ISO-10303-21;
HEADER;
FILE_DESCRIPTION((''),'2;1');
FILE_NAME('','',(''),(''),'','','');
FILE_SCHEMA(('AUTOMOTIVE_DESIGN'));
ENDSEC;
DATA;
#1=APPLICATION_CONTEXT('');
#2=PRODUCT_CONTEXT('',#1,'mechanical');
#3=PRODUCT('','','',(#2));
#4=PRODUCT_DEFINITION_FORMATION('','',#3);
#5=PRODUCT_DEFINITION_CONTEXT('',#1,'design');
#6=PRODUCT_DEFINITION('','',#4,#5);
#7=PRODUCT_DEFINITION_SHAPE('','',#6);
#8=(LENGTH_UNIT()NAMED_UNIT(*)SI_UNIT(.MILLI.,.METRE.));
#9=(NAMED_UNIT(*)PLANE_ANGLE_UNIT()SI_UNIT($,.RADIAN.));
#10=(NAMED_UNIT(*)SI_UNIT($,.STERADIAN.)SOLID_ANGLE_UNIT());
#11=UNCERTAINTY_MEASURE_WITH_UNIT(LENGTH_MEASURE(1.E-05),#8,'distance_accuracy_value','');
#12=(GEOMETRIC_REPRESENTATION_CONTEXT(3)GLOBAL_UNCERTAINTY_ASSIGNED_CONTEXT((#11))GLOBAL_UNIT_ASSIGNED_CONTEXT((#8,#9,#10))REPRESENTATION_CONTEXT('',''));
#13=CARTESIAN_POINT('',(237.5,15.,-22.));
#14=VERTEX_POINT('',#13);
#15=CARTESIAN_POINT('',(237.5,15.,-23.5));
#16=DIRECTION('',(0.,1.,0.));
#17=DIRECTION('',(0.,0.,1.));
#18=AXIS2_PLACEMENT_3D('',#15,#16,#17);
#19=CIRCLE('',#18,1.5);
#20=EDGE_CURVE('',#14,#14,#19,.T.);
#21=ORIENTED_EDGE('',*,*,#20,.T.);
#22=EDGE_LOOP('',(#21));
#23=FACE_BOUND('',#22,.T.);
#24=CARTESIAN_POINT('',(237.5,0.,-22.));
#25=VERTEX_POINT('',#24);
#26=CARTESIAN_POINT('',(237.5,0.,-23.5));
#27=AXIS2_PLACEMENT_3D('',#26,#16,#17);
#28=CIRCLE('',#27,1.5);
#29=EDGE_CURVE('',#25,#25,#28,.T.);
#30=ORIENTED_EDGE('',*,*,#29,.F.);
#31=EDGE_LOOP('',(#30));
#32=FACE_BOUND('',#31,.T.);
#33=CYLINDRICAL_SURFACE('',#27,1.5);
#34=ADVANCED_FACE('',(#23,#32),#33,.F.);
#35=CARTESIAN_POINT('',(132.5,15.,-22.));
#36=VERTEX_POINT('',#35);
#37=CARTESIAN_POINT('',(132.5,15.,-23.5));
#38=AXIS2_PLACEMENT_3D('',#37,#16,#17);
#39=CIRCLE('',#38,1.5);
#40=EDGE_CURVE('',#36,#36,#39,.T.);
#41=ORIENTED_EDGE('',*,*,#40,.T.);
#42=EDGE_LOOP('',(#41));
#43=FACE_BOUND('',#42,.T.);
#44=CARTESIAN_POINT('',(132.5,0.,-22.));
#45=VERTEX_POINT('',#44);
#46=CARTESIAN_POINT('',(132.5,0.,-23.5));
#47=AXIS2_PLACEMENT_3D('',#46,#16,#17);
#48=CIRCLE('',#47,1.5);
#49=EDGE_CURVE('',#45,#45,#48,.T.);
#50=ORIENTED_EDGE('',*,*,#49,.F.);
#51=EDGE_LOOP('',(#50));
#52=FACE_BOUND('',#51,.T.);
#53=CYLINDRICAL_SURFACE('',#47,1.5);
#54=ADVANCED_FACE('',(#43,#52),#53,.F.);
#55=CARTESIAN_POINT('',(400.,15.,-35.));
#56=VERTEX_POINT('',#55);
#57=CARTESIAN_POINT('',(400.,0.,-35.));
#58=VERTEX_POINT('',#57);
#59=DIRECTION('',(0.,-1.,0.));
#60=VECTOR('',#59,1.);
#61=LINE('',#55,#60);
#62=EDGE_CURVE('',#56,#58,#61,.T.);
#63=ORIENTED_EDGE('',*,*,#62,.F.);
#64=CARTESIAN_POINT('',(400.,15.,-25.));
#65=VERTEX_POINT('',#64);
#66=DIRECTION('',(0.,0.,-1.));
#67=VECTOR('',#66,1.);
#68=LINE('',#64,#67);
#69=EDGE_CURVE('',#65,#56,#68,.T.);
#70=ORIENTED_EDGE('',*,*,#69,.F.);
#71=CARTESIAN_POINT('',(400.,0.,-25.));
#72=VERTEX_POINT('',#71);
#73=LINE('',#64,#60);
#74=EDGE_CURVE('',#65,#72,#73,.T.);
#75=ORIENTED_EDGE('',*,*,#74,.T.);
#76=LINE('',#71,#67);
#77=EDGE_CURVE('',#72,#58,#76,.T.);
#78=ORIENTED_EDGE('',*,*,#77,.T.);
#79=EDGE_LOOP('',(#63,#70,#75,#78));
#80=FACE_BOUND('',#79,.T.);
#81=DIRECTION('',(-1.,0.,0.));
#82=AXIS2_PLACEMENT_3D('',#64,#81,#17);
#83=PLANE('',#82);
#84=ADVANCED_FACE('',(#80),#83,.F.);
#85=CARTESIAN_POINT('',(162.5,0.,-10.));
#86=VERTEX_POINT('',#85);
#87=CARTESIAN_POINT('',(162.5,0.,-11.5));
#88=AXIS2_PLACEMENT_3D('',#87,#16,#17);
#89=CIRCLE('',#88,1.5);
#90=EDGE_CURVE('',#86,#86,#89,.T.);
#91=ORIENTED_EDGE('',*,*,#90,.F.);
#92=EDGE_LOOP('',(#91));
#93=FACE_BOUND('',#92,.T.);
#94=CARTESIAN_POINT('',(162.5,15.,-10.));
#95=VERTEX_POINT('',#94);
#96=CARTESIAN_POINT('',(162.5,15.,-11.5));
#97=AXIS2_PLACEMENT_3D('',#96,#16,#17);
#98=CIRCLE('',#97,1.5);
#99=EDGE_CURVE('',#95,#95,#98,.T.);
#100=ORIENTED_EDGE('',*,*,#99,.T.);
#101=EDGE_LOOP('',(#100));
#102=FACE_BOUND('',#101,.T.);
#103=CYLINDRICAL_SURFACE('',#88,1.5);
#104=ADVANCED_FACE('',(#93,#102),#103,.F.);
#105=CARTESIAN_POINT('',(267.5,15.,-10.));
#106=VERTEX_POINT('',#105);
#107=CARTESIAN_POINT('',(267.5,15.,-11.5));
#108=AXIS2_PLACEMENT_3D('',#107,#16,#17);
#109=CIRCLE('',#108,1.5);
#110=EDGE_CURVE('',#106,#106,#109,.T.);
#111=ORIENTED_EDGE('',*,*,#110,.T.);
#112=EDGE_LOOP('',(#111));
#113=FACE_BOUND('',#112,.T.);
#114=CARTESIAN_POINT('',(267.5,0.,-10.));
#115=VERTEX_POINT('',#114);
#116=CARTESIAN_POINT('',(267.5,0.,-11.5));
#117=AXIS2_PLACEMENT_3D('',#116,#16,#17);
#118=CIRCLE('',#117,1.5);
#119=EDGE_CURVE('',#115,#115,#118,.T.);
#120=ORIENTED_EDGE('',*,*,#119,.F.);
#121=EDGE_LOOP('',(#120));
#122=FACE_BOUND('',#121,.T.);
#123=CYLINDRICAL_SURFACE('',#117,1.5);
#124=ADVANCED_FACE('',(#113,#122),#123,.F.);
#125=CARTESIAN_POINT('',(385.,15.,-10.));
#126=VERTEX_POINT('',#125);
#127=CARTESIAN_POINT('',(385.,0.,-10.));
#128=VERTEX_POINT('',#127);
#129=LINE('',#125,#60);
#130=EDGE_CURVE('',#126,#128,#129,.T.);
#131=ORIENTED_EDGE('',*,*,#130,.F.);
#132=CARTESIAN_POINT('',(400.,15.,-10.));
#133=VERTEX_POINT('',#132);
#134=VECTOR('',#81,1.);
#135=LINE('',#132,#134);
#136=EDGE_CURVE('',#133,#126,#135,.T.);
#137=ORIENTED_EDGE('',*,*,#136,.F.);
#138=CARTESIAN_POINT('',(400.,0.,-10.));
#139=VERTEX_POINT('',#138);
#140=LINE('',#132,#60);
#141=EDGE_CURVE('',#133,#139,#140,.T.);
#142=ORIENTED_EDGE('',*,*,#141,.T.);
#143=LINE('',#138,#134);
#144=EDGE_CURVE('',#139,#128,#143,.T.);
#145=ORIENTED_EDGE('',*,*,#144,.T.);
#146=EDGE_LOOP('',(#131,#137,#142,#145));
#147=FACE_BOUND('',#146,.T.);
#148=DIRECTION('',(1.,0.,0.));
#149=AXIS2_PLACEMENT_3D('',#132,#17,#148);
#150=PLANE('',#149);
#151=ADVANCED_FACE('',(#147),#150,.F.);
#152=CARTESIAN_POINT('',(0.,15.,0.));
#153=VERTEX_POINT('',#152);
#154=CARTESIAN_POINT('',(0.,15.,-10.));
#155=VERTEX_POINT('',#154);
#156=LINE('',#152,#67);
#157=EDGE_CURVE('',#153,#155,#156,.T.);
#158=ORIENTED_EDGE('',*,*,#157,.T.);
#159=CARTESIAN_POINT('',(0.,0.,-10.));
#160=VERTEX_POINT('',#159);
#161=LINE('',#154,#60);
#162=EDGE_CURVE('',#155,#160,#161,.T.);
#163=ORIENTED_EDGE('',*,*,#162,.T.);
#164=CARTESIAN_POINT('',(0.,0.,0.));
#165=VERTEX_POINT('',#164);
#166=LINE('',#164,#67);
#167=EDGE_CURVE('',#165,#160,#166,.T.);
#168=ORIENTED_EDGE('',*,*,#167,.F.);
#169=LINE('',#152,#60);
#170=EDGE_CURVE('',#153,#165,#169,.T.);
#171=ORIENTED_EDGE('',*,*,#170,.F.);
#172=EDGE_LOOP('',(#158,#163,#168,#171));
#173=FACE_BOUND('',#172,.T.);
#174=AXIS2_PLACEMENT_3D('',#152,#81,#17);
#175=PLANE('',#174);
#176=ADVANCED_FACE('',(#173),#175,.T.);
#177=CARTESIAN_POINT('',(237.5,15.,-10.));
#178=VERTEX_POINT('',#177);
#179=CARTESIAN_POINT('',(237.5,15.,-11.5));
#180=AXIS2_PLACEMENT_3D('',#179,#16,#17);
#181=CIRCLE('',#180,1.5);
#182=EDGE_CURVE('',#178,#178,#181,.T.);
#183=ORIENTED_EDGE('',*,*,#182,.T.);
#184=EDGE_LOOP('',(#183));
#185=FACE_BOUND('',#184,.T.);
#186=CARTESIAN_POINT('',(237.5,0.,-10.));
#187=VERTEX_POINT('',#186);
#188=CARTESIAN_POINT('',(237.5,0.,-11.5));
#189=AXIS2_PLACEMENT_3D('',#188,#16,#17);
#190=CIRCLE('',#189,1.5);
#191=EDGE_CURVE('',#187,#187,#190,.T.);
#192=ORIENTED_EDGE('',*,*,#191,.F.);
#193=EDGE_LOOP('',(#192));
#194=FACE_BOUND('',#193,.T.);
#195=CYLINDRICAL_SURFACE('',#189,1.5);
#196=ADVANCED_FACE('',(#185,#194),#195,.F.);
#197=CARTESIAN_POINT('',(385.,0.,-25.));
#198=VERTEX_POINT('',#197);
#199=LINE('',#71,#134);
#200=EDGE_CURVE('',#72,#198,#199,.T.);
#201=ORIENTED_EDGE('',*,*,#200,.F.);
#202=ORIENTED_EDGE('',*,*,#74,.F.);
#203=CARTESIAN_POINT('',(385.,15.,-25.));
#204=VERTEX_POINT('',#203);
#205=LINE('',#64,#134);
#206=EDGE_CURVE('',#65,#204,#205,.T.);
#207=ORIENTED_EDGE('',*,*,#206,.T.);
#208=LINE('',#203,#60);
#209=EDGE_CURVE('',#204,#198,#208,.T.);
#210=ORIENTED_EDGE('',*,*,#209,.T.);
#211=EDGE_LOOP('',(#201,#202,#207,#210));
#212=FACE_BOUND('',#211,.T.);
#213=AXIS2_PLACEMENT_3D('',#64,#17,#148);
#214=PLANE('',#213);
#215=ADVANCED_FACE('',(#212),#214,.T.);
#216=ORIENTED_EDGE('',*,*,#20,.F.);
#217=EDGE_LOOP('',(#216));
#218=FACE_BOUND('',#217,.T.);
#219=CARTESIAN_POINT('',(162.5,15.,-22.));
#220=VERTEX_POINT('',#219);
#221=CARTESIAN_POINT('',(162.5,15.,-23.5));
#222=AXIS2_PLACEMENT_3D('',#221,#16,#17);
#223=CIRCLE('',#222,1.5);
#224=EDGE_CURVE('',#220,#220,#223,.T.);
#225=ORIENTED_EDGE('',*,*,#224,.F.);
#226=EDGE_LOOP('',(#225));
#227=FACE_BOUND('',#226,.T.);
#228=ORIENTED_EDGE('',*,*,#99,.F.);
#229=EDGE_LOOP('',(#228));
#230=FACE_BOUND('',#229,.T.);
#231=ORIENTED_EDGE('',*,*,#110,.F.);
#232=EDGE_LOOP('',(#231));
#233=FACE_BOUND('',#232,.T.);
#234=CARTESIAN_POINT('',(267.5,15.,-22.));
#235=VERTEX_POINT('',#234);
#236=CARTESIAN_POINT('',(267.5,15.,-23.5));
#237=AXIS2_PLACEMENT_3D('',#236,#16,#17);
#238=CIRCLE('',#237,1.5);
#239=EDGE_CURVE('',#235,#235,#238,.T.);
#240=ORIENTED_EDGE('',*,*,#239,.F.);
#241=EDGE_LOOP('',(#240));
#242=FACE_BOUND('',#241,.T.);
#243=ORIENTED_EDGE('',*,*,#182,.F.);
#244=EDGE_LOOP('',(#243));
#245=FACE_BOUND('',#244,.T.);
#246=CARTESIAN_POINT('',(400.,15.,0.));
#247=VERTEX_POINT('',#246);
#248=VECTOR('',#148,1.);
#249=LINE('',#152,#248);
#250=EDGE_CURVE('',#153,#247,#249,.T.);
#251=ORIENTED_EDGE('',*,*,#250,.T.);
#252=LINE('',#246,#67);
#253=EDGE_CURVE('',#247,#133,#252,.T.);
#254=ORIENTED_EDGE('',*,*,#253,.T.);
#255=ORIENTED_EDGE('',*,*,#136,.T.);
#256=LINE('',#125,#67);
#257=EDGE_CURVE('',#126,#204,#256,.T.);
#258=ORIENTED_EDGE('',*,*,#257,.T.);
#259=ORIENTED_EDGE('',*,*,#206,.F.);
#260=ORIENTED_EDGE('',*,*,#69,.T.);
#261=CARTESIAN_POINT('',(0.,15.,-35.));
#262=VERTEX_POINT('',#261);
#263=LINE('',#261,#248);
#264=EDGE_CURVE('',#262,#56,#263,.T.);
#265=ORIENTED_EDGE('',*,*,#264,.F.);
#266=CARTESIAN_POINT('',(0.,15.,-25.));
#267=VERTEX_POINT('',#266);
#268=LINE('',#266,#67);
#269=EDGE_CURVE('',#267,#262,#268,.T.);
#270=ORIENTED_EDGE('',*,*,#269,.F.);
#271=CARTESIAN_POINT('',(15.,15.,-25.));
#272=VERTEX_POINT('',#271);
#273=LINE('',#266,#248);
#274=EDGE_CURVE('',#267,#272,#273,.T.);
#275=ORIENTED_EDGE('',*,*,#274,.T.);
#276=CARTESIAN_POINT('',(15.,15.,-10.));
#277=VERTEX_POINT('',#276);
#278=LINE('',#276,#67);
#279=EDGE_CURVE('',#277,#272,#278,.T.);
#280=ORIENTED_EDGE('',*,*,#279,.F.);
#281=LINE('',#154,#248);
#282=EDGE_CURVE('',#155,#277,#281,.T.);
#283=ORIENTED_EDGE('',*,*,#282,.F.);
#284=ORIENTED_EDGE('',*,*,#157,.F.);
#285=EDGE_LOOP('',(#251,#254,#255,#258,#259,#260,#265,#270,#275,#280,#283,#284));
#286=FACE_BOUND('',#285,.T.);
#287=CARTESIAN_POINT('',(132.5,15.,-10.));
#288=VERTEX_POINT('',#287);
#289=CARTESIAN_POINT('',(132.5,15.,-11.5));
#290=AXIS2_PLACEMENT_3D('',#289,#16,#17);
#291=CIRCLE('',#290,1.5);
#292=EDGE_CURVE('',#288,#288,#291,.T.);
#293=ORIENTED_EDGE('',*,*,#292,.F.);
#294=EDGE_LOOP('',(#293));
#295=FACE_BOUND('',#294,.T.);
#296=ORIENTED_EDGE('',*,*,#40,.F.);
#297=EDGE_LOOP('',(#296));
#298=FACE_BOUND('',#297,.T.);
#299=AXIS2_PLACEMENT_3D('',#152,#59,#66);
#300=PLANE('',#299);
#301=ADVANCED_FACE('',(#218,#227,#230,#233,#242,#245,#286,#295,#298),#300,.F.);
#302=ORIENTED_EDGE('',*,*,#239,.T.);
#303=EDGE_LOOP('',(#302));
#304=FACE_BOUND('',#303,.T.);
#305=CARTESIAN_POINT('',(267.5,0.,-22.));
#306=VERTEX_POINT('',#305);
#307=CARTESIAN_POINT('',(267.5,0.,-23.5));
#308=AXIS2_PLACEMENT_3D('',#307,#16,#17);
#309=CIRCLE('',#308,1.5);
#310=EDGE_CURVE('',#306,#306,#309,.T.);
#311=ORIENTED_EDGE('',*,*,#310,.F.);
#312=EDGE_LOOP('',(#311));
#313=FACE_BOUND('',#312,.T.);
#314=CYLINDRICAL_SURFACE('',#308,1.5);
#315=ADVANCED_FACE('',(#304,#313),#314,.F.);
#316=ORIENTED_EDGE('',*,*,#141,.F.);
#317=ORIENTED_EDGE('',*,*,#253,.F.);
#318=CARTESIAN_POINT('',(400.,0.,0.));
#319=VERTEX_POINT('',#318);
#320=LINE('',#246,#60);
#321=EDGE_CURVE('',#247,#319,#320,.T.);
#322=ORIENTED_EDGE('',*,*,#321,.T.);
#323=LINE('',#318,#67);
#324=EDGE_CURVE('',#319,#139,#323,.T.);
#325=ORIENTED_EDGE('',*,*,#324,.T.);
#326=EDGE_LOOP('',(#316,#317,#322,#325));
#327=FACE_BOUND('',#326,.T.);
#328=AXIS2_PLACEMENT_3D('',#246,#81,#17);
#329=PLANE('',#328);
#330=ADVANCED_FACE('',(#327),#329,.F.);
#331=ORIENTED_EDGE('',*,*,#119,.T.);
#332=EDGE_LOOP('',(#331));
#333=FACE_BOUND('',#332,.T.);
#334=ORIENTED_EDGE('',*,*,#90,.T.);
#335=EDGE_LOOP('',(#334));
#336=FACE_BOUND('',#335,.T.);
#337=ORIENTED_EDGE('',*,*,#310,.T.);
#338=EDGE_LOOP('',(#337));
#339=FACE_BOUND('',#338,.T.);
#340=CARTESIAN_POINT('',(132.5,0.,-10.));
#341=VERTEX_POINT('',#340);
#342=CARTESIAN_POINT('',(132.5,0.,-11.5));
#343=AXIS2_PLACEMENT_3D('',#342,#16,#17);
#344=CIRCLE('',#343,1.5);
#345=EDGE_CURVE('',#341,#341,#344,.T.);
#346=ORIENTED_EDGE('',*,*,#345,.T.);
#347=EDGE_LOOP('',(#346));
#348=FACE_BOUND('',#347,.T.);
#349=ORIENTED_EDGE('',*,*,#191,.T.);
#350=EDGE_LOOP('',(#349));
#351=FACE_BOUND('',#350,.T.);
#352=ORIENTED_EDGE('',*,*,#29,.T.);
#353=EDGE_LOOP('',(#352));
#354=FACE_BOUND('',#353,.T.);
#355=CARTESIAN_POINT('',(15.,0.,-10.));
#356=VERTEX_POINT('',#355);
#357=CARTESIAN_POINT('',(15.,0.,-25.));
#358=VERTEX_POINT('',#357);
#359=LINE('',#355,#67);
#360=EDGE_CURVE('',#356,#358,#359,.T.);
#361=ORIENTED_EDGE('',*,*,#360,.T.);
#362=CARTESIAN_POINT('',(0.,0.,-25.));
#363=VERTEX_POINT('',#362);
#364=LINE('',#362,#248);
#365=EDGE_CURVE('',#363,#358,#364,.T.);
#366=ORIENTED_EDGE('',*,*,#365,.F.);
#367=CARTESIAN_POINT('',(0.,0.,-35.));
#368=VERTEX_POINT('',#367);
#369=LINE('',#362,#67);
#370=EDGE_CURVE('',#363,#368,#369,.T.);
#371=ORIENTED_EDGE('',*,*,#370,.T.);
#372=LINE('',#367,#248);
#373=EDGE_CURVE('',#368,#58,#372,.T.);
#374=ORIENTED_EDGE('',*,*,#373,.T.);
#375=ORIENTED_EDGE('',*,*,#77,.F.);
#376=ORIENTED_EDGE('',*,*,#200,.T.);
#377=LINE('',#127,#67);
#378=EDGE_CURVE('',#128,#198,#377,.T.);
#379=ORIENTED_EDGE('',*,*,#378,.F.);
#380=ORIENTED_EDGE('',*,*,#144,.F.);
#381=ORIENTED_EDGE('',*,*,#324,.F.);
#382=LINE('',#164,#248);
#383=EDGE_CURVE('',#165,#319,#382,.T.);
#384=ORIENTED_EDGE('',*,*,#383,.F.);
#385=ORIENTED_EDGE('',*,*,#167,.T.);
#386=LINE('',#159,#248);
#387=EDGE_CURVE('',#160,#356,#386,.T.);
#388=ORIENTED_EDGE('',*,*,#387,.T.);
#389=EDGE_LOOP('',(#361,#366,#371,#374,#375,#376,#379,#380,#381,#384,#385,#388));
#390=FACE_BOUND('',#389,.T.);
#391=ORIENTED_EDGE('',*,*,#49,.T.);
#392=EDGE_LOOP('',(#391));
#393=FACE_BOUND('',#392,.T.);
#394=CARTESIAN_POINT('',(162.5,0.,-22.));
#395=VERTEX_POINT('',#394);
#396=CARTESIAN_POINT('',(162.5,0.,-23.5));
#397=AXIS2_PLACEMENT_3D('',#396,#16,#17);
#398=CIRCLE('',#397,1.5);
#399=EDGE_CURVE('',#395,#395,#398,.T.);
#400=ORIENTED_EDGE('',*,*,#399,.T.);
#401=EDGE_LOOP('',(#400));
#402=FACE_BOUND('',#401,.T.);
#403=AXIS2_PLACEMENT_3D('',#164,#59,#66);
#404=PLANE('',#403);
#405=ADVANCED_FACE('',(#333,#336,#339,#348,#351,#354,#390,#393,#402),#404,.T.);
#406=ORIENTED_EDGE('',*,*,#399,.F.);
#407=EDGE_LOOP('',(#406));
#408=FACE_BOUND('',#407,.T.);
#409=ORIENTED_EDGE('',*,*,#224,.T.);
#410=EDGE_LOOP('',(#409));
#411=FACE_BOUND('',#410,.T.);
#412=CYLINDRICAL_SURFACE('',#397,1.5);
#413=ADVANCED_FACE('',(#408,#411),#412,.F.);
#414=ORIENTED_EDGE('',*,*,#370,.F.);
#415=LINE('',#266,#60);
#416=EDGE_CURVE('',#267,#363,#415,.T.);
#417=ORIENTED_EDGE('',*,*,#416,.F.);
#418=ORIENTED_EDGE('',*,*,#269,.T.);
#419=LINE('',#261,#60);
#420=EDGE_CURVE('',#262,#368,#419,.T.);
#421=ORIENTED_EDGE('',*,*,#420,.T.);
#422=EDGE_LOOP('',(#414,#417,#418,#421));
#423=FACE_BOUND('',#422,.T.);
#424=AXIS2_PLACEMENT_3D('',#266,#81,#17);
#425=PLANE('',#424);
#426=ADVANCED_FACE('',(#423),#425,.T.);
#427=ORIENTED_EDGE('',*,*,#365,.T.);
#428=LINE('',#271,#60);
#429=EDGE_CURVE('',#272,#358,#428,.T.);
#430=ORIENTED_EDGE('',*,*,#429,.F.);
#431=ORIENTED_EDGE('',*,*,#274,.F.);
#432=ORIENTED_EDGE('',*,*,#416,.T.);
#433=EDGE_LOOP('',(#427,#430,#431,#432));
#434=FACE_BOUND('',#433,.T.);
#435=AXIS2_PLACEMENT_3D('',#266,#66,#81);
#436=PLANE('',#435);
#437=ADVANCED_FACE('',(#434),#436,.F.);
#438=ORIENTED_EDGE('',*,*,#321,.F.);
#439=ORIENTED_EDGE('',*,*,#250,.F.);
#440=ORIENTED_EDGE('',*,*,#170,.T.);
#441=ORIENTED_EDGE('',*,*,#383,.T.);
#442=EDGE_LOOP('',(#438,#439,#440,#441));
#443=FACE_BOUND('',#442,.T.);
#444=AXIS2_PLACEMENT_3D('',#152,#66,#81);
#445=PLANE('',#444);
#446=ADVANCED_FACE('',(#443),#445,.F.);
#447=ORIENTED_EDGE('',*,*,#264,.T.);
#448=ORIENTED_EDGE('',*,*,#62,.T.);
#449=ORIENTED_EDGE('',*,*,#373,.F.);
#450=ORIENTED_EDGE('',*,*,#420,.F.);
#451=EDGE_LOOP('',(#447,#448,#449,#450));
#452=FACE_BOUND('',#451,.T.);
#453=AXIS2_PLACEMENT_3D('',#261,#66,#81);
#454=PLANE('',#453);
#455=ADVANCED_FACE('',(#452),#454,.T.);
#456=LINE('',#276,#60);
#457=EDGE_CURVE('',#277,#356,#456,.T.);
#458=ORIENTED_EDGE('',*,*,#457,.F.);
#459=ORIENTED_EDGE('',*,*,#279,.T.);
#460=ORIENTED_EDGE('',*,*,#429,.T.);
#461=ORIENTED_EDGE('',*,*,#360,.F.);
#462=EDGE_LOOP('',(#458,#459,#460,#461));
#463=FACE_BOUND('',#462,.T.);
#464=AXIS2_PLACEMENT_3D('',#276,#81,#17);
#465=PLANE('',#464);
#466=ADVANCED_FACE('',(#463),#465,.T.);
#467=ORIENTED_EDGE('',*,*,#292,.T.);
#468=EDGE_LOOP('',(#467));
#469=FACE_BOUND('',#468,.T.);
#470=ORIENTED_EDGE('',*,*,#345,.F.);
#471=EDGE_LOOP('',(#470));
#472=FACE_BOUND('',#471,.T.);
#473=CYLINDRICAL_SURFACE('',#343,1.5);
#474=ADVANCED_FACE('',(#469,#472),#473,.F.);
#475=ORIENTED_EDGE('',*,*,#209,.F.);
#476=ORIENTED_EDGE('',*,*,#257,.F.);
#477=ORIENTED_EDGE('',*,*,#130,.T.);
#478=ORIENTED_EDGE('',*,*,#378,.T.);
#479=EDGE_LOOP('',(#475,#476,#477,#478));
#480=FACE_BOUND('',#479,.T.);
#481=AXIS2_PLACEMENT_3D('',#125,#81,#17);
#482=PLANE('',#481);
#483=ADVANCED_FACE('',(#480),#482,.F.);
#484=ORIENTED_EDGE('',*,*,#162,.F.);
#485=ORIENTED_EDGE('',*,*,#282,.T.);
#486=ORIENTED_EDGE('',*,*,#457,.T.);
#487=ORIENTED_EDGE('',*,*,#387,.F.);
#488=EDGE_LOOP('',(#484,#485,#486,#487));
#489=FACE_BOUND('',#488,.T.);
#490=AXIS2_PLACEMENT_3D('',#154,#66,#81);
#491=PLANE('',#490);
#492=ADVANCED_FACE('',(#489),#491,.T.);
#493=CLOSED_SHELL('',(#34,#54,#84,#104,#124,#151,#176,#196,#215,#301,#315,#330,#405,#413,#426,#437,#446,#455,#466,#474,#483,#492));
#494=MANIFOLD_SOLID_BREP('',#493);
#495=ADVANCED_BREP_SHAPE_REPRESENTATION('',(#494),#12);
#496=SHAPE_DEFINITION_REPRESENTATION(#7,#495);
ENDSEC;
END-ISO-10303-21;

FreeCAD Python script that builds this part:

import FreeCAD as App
import Part
import Sketcher

V = App.Vector


def add_polygon(sketch, points):
    """Adds a closed chain of lines whose ends are joined by coincident constraints."""
    first, n = sketch.GeometryCount, len(points)
    for a, b in zip(points, points[1:] + points[:1]):
        sketch.addGeometry(Part.LineSegment(App.Vector(*a, 0), App.Vector(*b, 0)), False)
    for i in range(n):
        sketch.addConstraint(Sketcher.Constraint("Coincident", first + i, 2, first + (i + 1) % n, 1))

doc = App.newDocument("Part")
body = doc.addObject("PartDesign::Body", "Body")

sketch1 = doc.addObject("Sketcher::SketchObject", "Sketch")
body.addObject(sketch1)
sketch1.AttachmentSupport = (doc.XZ_Plane, [""])
sketch1.MapMode = "FlatFace"
add_polygon(sketch1, [(0, 0), (400, 0), (400, -10), (385, -10), (385, -25), (400, -25), (400, -35), (0, -35), (0, -25), (15, -25), (15, -10), (0, -10)])
sketch1.addConstraint([
    Sketcher.Constraint("Horizontal", 0),
    Sketcher.Constraint("Vertical", 1),
    Sketcher.Constraint("Horizontal", 2),
    Sketcher.Constraint("Vertical", 3),
    Sketcher.Constraint("Horizontal", 4),
    Sketcher.Constraint("Vertical", 5),
    Sketcher.Constraint("Horizontal", 6),
    Sketcher.Constraint("Vertical", 7),
    Sketcher.Constraint("Horizontal", 8),
    Sketcher.Constraint("Vertical", 9),
    Sketcher.Constraint("Horizontal", 10),
    Sketcher.Constraint("Vertical", 11),
    Sketcher.Constraint("Coincident", 11, 2, -1, 1),
    Sketcher.Constraint("PointOnObject", 6, 2, -2),
    Sketcher.Constraint("Horizontal", 4, 2, 7, 2),
    Sketcher.Constraint("Horizontal", 2, 2, 9, 2),
    Sketcher.Constraint("Vertical", 1, 2, 4, 2),
    Sketcher.Constraint("Equal", 4, 8),
    Sketcher.Constraint("Equal", 10, 3),
    Sketcher.Constraint("Equal", 1, 5),
    Sketcher.Constraint("DistanceX", 0, 1, 0, 2, 400.0),
    Sketcher.Constraint("DistanceX", 2, 2, 2, 1, 15.0),
    Sketcher.Constraint("DistanceY", 1, 2, 1, 1, 10.0),
])
pad1 = doc.addObject("PartDesign::Pad", "Pad")
body.addObject(pad1)
pad1.Profile = sketch1
pad1.Length = 15
pad1.Reversed = True

sketch2 = doc.addObject("Sketcher::SketchObject", "Sketch001")
body.addObject(sketch2)
sketch2.AttachmentSupport = (doc.XZ_Plane, [""])
sketch2.MapMode = "FlatFace"
sketch2.AttachmentOffset = App.Placement(V(0, 0, -15), App.Rotation())
sketch2.addGeometry([
    Part.Circle(V(267.5, -11.5, 0), V(0, 0, 1), 1.5),
    Part.Circle(V(267.5, -23.5, 0), V(0, 0, 1), 1.5),
    Part.Circle(V(237.5, -11.5, 0), V(0, 0, 1), 1.5),
    Part.Circle(V(237.5, -23.5, 0), V(0, 0, 1), 1.5),
    Part.Circle(V(162.5, -11.5, 0), V(0, 0, 1), 1.5),
    Part.Circle(V(132.5, -11.5, 0), V(0, 0, 1), 1.5),
    Part.Circle(V(132.5, -23.5, 0), V(0, 0, 1), 1.5),
    Part.Circle(V(162.5, -23.5, 0), V(0, 0, 1), 1.5),
], False)
sketch2.addConstraint([
    Sketcher.Constraint("Equal", 0, 1),
    Sketcher.Constraint("Equal", 1, 2),
    Sketcher.Constraint("Equal", 2, 3),
    Sketcher.Constraint("Equal", 3, 4),
    Sketcher.Constraint("Equal", 4, 5),
    Sketcher.Constraint("Equal", 5, 6),
    Sketcher.Constraint("Equal", 6, 7),
    Sketcher.Constraint("Horizontal", 0, 3, 2, 3),
    Sketcher.Constraint("Horizontal", 1, 3, 3, 3),
    Sketcher.Constraint("Horizontal", 2, 3, 4, 3),
    Sketcher.Constraint("Horizontal", 4, 3, 5, 3),
    Sketcher.Constraint("Horizontal", 3, 3, 6, 3),
    Sketcher.Constraint("Horizontal", 6, 3, 7, 3),
    Sketcher.Constraint("Vertical", 0, 3, 1, 3),
    Sketcher.Constraint("Vertical", 2, 3, 3, 3),
    Sketcher.Constraint("Vertical", 5, 3, 6, 3),
    Sketcher.Constraint("Vertical", 4, 3, 7, 3),
    Sketcher.Constraint("Diameter", 0, 3.0),
    Sketcher.Constraint("DistanceY", 1, 3, 0, 3, 12.0),
    Sketcher.Constraint("DistanceX", 2, 3, 0, 3, 30.0),
    Sketcher.Constraint("DistanceX", 4, 3, 2, 3, 75.0),
    Sketcher.Constraint("DistanceX", 5, 3, 4, 3, 30.0),
    Sketcher.Constraint("DistanceX", -1, 1, 0, 3, 267.5),
    Sketcher.Constraint("DistanceY", 0, 3, -1, 1, 11.5),
])
pocket1 = doc.addObject("PartDesign::Pocket", "Pocket")
body.addObject(pocket1)
pocket1.Profile = sketch2
pocket1.Length = 15
pocket1.Reversed = True

doc.recompute()
